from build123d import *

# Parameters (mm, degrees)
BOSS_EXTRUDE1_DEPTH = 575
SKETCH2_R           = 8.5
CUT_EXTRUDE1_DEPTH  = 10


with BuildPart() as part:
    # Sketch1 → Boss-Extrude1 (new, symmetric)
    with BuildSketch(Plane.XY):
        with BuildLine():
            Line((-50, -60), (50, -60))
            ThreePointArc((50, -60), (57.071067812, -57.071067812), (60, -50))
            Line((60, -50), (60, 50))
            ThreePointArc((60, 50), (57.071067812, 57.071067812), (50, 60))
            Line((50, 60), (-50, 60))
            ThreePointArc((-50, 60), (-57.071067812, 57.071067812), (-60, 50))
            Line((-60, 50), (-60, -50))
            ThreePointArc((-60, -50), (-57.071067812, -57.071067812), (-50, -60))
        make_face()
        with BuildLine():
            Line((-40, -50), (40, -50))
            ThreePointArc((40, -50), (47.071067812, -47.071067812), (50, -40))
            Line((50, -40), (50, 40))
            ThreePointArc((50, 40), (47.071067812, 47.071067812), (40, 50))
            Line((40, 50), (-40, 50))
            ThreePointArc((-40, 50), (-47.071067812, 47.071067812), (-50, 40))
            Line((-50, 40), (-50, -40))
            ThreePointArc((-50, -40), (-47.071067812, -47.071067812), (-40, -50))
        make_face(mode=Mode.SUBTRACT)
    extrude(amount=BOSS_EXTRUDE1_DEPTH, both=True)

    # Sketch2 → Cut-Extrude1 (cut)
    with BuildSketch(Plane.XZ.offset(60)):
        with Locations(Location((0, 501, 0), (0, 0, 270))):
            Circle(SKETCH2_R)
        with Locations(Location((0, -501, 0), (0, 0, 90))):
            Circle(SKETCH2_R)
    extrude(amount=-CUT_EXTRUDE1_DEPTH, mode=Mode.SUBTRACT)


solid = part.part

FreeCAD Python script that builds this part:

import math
import FreeCAD as App
import Part
import Sketcher
from FreeCAD import Vector

doc = App.newDocument("Part")
body = doc.addObject("PartDesign::Body", "Body")

# Sketch on XY plane
sketch1 = body.newObject("Sketcher::SketchObject", "Sketch")
sketch1.AttachmentSupport = (doc.getObject("XY_Plane"), [""])
sketch1.MapMode = "FlatFace"
sketch1.addGeometry(Part.LineSegment(Vector(-50, -60, 0), Vector(50, -60, 0)), False)
sketch1.addGeometry(Part.ArcOfCircle(Part.Circle(Vector(50, -50, 0), Vector(0, 0, 1), 10), math.radians(-90), math.radians(0)), False)
sketch1.addGeometry(Part.LineSegment(Vector(60, -50, 0), Vector(60, 50, 0)), False)
sketch1.addGeometry(Part.ArcOfCircle(Part.Circle(Vector(50, 50, 0), Vector(0, 0, 1), 10), math.radians(0), math.radians(90)), False)
sketch1.addGeometry(Part.LineSegment(Vector(50, 60, 0), Vector(-50, 60, 0)), False)
sketch1.addGeometry(Part.ArcOfCircle(Part.Circle(Vector(-50, 50, 0), Vector(0, 0, 1), 10), math.radians(90), math.radians(180)), False)
sketch1.addGeometry(Part.LineSegment(Vector(-60, 50, 0), Vector(-60, -50, 0)), False)
sketch1.addGeometry(Part.ArcOfCircle(Part.Circle(Vector(-50, -50, 0), Vector(0, 0, 1), 10), math.radians(180), math.radians(270)), False)
sketch1.addGeometry(Part.LineSegment(Vector(40, -50, 0), Vector(-40, -50, 0)), False)
sketch1.addGeometry(Part.ArcOfCircle(Part.Circle(Vector(-40, -40, 0), Vector(0, 0, 1), 10), math.radians(180), math.radians(270)), False)
sketch1.addGeometry(Part.LineSegment(Vector(-50, -40, 0), Vector(-50, 40, 0)), False)
sketch1.addGeometry(Part.ArcOfCircle(Part.Circle(Vector(-40, 40, 0), Vector(0, 0, 1), 10), math.radians(90), math.radians(180)), False)
sketch1.addGeometry(Part.LineSegment(Vector(-40, 50, 0), Vector(40, 50, 0)), False)
sketch1.addGeometry(Part.ArcOfCircle(Part.Circle(Vector(40, 40, 0), Vector(0, 0, 1), 10), math.radians(0), math.radians(90)), False)
sketch1.addGeometry(Part.LineSegment(Vector(50, 40, 0), Vector(50, -40, 0)), False)
sketch1.addGeometry(Part.ArcOfCircle(Part.Circle(Vector(40, -40, 0), Vector(0, 0, 1), 10), math.radians(-90), math.radians(0)), False)
sketch1.addConstraint(Sketcher.Constraint("Tangent", 0, 2, 1, 1))
sketch1.addConstraint(Sketcher.Constraint("Tangent", 1, 2, 2, 1))
sketch1.addConstraint(Sketcher.Constraint("Tangent", 2, 2, 3, 1))
sketch1.addConstraint(Sketcher.Constraint("Tangent", 3, 2, 4, 1))
sketch1.addConstraint(Sketcher.Constraint("Tangent", 4, 2, 5, 1))
sketch1.addConstraint(Sketcher.Constraint("Tangent", 5, 2, 6, 1))
sketch1.addConstraint(Sketcher.Constraint("Tangent", 6, 2, 7, 1))
sketch1.addConstraint(Sketcher.Constraint("Tangent", 7, 2, 0, 1))
sketch1.addConstraint(Sketcher.Constraint("Tangent", 8, 2, 9, 2))
sketch1.addConstraint(Sketcher.Constraint("Tangent", 9, 1, 10, 1))
sketch1.addConstraint(Sketcher.Constraint("Tangent", 10, 2, 11, 2))
sketch1.addConstraint(Sketcher.Constraint("Tangent", 11, 1, 12, 1))
sketch1.addConstraint(Sketcher.Constraint("Tangent", 12, 2, 13, 2))
sketch1.addConstraint(Sketcher.Constraint("Tangent", 13, 1, 14, 1))
sketch1.addConstraint(Sketcher.Constraint("Tangent", 14, 2, 15, 2))
sketch1.addConstraint(Sketcher.Constraint("Tangent", 15, 1, 8, 1))
sketch1.addConstraint(Sketcher.Constraint("Horizontal", 0))
sketch1.addConstraint(Sketcher.Constraint("Vertical", 2))
sketch1.addConstraint(Sketcher.Constraint("Horizontal", 4))
sketch1.addConstraint(Sketcher.Constraint("Vertical", 6))
sketch1.addConstraint(Sketcher.Constraint("Horizontal", 8))
sketch1.addConstraint(Sketcher.Constraint("Vertical", 10))
sketch1.addConstraint(Sketcher.Constraint("Horizontal", 12))
sketch1.addConstraint(Sketcher.Constraint("Vertical", 14))
sketch1.addConstraint(Sketcher.Constraint("Equal", 1, 3))
sketch1.addConstraint(Sketcher.Constraint("Equal", 3, 5))
sketch1.addConstraint(Sketcher.Constraint("Equal", 5, 7))
sketch1.addConstraint(Sketcher.Constraint("Equal", 7, 9))
sketch1.addConstraint(Sketcher.Constraint("Equal", 9, 11))
sketch1.addConstraint(Sketcher.Constraint("Equal", 11, 13))
sketch1.addConstraint(Sketcher.Constraint("Equal", 13, 15))
sketch1.addConstraint(Sketcher.Constraint("Symmetric", 1, 3, 5, 3, -1, 1))
sketch1.addConstraint(Sketcher.Constraint("Symmetric", 9, 3, 13, 3, -1, 1))
sketch1.addConstraint(Sketcher.Constraint("Horizontal", 6, 2, 8, 2))
sketch1.addConstraint(Sketcher.Constraint("Vertical", 7, 2, 9, 1))
sketch1.addConstraint(Sketcher.Constraint("Equal", 4, 2))
sketch1.addConstraint(Sketcher.Constraint("Radius", 1, 10.0))
sketch1.addConstraint(Sketcher.Constraint("DistanceX", 0, 1, 0, 2, 100.0))
pad1 = body.newObject("PartDesign::Pad", "Pad")
pad1.Profile = sketch1
pad1.Length = 1150
pad1.Midplane = True

# Sketch on XZ plane
sketch2 = body.newObject("Sketcher::SketchObject", "Sketch001")
sketch2.AttachmentSupport = (doc.getObject("XZ_Plane"), [""])
sketch2.MapMode = "FlatFace"
sketch2.AttachmentOffset = App.Placement(Vector(0, 0, 60), App.Rotation())
sketch2.addGeometry(Part.Circle(Vector(0, 501, 0), Vector(0, 0, 1), 8), False)
sketch2.addGeometry(Part.Circle(Vector(0, -501, 0), Vector(0, 0, 1), 8), False)
sketch2.addConstraint(Sketcher.Constraint("Equal", 0, 1))
sketch2.addConstraint(Sketcher.Constraint("Symmetric", 0, 3, 1, 3, -1, 1))
sketch2.addConstraint(Sketcher.Constraint("PointOnObject", 0, 3, -2))
sketch2.addConstraint(Sketcher.Constraint("Diameter", 0, 17.0))
sketch2.addConstraint(Sketcher.Constraint("DistanceY", -1, 1, 0, 3, 501.0))
pocket1 = body.newObject("PartDesign::Pocket", "Pocket")
pocket1.Profile = sketch2
pocket1.Length = 10

doc.recompute()
